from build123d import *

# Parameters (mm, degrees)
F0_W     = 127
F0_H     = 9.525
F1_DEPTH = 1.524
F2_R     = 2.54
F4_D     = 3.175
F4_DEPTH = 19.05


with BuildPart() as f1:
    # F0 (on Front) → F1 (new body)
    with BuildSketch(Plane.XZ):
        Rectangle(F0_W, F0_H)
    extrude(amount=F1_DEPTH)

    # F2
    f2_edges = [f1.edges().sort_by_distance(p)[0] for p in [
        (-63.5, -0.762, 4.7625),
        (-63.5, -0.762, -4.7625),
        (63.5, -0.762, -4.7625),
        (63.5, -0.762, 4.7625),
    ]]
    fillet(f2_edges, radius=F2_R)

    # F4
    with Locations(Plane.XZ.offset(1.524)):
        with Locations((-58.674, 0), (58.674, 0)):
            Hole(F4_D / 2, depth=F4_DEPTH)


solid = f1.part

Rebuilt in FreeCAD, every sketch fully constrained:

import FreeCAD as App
import Part
import Sketcher

V = App.Vector
Q = App.Units.Quantity


def edges_at(feature, points):
    """Names of the edges that pass closest to the given points."""
    edges = feature.Shape.Edges
    near = lambda p: min(range(len(edges)), key=lambda i: edges[i].distToShape(Part.Vertex(*p))[0])
    return sorted({f"Edge{near(p) + 1}" for p in points})


def add_polygon(sketch, points):
    """Adds a closed chain of lines whose ends are joined by coincident constraints."""
    first, n = sketch.GeometryCount, len(points)
    for a, b in zip(points, points[1:] + points[:1]):
        sketch.addGeometry(Part.LineSegment(App.Vector(*a, 0), App.Vector(*b, 0)), False)
    for i in range(n):
        sketch.addConstraint(Sketcher.Constraint("Coincident", first + i, 2, first + (i + 1) % n, 1))

doc = App.newDocument("Part")
body = doc.addObject("PartDesign::Body", "Body")

# Sketch on XZ plane
sketch1 = body.newObject("Sketcher::SketchObject", "Sketch")
sketch1.AttachmentSupport = (doc.getObject("XZ_Plane"), [""])
sketch1.MapMode = "FlatFace"
add_polygon(sketch1, [(-64, 5), (-64, -5), (64, -5), (64, 5)])  # lines 0-3
sketch1.addConstraint(Sketcher.Constraint("Vertical", 0))
sketch1.addConstraint(Sketcher.Constraint("Horizontal", 1))
sketch1.addConstraint(Sketcher.Constraint("Vertical", 2))
sketch1.addConstraint(Sketcher.Constraint("Horizontal", 3))
sketch1.addConstraint(Sketcher.Constraint("Symmetric", 0, 2, 2, 2, -1, 1))
sketch1.addConstraint(Sketcher.Constraint("DistanceX", 1, 1, 1, 2, Q("5 in")))
sketch1.addConstraint(Sketcher.Constraint("DistanceY", 0, 2, 0, 1, Q("0.375 in")))
pad1 = body.newObject("PartDesign::Pad", "Pad")
pad1.Profile = sketch1
pad1.Length = Q("0.06 in")
doc.recompute()

fillet = body.newObject("PartDesign::Fillet", "Fillet")
fillet.Base = (pad1, edges_at(pad1, [
    (-63.5, -0.762, 4.763),
    (-63.5, -0.762, -4.763),
    (63.5, -0.762, -4.763),
    (63.5, -0.762, 4.763),
]))
fillet.Radius = Q("0.1 in")

# Sketch on XZ plane
sketch2 = body.newObject("Sketcher::SketchObject", "Sketch001")
sketch2.AttachmentSupport = (doc.getObject("XZ_Plane"), [""])
sketch2.MapMode = "FlatFace"
sketch2.AttachmentOffset = App.Placement(V(0, 0, 0.06 * 25.4), App.Rotation())
sketch2.addGeometry(Part.Circle(V(-58.7, 0, 0), V(0, 0, 1), 1.6), False)
sketch2.addGeometry(Part.Circle(V(58.7, 0, 0), V(0, 0, 1), 1.6), False)
sketch2.addConstraint(Sketcher.Constraint("Equal", 0, 1))
sketch2.addConstraint(Sketcher.Constraint("Symmetric", 0, 3, 1, 3, -1, 1))
sketch2.addConstraint(Sketcher.Constraint("PointOnObject", 0, 3, -1))
sketch2.addConstraint(Sketcher.Constraint("Diameter", 0, Q("0.125 in")))
sketch2.addConstraint(Sketcher.Constraint("DistanceX", 0, 3, -1, 1, Q("2.31 in")))
doc.recompute()
hole = body.newObject("PartDesign::Hole", "Hole")
hole.Profile = sketch2
hole.ThreadType = "None"
hole.Diameter = Q("0.125 in")
hole.DepthType = "Dimension"
hole.Depth = Q("0.75 in")
hole.DrillPoint = "Flat"

doc.recompute()
